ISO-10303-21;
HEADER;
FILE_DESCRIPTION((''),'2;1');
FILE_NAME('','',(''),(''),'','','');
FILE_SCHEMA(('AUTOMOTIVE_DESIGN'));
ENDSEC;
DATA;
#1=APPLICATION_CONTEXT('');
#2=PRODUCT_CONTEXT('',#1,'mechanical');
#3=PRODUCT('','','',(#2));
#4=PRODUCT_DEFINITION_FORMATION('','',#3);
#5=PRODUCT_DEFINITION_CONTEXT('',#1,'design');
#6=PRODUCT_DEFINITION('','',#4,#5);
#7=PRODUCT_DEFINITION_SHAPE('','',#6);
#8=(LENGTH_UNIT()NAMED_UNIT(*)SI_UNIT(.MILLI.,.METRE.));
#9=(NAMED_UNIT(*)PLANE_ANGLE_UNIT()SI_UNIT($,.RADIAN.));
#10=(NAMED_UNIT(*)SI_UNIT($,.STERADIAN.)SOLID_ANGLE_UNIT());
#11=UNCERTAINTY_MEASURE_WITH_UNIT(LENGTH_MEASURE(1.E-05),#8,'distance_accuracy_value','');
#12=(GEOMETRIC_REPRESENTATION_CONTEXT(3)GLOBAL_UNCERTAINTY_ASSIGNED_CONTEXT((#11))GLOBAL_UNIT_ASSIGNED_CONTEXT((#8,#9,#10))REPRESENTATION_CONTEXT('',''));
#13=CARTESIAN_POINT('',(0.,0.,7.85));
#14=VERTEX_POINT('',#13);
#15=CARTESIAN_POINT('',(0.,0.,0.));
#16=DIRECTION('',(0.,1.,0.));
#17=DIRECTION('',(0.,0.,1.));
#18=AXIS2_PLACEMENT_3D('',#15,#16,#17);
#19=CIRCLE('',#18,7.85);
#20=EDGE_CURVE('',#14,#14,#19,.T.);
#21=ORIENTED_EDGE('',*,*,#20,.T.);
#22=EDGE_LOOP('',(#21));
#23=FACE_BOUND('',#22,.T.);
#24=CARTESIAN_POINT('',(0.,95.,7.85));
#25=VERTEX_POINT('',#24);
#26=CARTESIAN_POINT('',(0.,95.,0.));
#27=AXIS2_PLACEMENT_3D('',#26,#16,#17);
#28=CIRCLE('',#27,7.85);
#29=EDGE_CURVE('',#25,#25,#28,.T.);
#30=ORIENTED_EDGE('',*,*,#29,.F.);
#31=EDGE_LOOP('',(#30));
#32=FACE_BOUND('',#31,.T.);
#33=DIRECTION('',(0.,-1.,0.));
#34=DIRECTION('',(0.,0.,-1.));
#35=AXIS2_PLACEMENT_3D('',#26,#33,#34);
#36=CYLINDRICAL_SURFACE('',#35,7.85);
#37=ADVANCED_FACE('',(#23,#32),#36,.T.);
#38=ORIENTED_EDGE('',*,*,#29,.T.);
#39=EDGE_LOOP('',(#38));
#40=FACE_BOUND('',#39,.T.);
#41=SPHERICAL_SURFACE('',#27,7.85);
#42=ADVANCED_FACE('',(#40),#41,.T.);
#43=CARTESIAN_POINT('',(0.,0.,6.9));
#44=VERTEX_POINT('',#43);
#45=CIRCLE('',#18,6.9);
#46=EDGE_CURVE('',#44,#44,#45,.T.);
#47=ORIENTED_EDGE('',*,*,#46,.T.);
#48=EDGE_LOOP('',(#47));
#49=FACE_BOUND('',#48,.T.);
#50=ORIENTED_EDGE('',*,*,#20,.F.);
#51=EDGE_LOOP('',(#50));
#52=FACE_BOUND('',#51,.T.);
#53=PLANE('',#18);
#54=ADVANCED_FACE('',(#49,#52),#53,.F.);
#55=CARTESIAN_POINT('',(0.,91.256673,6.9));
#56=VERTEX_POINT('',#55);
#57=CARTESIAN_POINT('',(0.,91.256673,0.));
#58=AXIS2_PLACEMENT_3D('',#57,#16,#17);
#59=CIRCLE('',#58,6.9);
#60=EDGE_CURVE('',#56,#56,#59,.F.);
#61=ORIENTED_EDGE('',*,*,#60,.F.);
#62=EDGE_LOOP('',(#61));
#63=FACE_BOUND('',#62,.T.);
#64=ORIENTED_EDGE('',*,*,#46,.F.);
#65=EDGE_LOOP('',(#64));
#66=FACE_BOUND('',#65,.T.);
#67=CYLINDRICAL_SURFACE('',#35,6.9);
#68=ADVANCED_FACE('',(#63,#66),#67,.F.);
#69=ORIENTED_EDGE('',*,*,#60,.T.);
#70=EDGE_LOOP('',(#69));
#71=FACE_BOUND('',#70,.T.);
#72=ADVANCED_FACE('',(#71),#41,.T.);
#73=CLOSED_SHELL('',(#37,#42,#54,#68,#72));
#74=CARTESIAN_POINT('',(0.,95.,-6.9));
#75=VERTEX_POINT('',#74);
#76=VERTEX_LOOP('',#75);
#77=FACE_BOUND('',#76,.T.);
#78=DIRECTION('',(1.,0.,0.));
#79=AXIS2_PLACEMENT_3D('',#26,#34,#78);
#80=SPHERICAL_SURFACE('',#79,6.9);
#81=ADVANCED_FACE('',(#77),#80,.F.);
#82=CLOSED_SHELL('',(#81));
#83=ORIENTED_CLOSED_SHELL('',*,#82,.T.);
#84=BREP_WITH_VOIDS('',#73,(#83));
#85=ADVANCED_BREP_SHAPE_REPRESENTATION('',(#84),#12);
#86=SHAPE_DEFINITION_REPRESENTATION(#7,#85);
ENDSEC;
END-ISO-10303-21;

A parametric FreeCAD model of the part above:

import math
import FreeCAD as App
import Part
import Sketcher
from FreeCAD import Vector

doc = App.newDocument("Part")
params = doc.addObject("Spreadsheet::Sheet", "Params")
for row, (alias, value) in enumerate([
    ("sketch1_diameter", "15.7 mm"),
    ("sketch1_diameter2", "13.8 mm"),
    ("pad1_length", "95 mm"),
    ("sketch2_radius", "6.9 mm"),
    ("sketch2_radius2", "7.85 mm"),
    ("revolution_angle", "360 deg"),
], start=1):
    params.set(f"A{row}", alias)
    params.set(f"B{row}", "=" + value)
    params.setAlias(f"B{row}", alias)

body = doc.addObject("PartDesign::Body", "Body")

sketch1 = doc.addObject("Sketcher::SketchObject", "Sketch")
body.addObject(sketch1)
sketch1.AttachmentSupport = (doc.XZ_Plane, [""])
sketch1.MapMode = "FlatFace"
sketch1.addGeometry(Part.Circle(Vector(0, 0, 0), Vector(0, 0, 1), 8), False)
sketch1.addGeometry(Part.Circle(Vector(0, 0, 0), Vector(0, 0, 1), 7), False)
sketch1.addConstraint(Sketcher.Constraint("Coincident", 0, 3, -1, 1))
sketch1.addConstraint(Sketcher.Constraint("Coincident", 1, 3, -1, 1))
sketch1.addConstraint(Sketcher.Constraint("Diameter", 0, 15.7))
sketch1.addConstraint(Sketcher.Constraint("Diameter", 1, 13.8))
sketch1.setExpression("Constraints[2]", "Params.sketch1_diameter")
sketch1.setExpression("Constraints[3]", "Params.sketch1_diameter2")
pad1 = doc.addObject("PartDesign::Pad", "Pad")
body.addObject(pad1)
pad1.Profile = sketch1
pad1.setExpression("Length", "Params.pad1_length")
pad1.Reversed = True

sketch2 = doc.addObject("Sketcher::SketchObject", "Sketch001")
body.addObject(sketch2)
sketch2.AttachmentSupport = (doc.XZ_Plane, [""])
sketch2.MapMode = "FlatFace"
sketch2.AttachmentOffset = App.Placement(Vector(0, 0, -95), App.Rotation())
sketch2.addGeometry(Part.LineSegment(Vector(0, -6.9, 0), Vector(0, -7.8, 0)), False)
sketch2.addGeometry(Part.ArcOfCircle(Part.Circle(Vector(0, 0, 0), Vector(0, 0, 1), 7.8), math.radians(90), math.radians(270)), False)
sketch2.addGeometry(Part.LineSegment(Vector(0, 7.8, 0), Vector(0, 6.9, 0)), False)
sketch2.addGeometry(Part.ArcOfCircle(Part.Circle(Vector(0, 0, 0), Vector(0, 0, 1), 6.9), math.radians(90), math.radians(270)), False)
sketch2.addConstraint(Sketcher.Constraint("Coincident", 0, 2, 1, 2))
sketch2.addConstraint(Sketcher.Constraint("Coincident", 1, 1, 2, 1))
sketch2.addConstraint(Sketcher.Constraint("Coincident", 2, 2, 3, 1))
sketch2.addConstraint(Sketcher.Constraint("Coincident", 3, 2, 0, 1))
sketch2.addConstraint(Sketcher.Constraint("Vertical", 0))
sketch2.addConstraint(Sketcher.Constraint("Vertical", 2))
sketch2.addConstraint(Sketcher.Constraint("Coincident", 1, 3, -1, 1))
sketch2.addConstraint(Sketcher.Constraint("Coincident", 3, 3, -1, 1))
sketch2.addConstraint(Sketcher.Constraint("PointOnObject", 0, 2, -2))
sketch2.addConstraint(Sketcher.Constraint("PointOnObject", 1, 1, -2))
sketch2.addConstraint(Sketcher.Constraint("Radius", 3, 6.9))
sketch2.addConstraint(Sketcher.Constraint("Radius", 1, 7.85))
sketch2.setExpression("Constraints[10]", "Params.sketch2_radius")
sketch2.setExpression("Constraints[11]", "Params.sketch2_radius2")
revolution = doc.addObject("PartDesign::Revolution", "Revolution")
body.addObject(revolution)
revolution.Profile = sketch2
revolution.ReferenceAxis = (sketch2, ["V_Axis"])
revolution.setExpression("Angle", "Params.revolution_angle")

doc.recompute()
